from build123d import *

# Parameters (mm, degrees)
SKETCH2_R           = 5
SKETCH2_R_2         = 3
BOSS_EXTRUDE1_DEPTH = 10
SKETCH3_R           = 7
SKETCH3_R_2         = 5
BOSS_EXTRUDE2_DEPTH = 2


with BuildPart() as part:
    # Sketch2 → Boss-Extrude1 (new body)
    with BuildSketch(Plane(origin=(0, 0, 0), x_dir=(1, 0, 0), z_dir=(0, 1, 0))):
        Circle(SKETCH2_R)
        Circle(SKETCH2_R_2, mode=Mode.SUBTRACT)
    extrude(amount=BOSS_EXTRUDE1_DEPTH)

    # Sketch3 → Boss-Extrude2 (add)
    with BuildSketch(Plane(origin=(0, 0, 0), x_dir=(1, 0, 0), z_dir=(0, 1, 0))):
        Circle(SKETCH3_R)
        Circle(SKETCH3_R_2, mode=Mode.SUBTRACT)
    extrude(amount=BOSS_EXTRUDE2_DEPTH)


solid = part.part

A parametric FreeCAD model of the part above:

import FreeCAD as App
import Part
import Sketcher

V = App.Vector
Q = App.Units.Quantity

doc = App.newDocument("Part")
body = doc.addObject("PartDesign::Body", "Body")

# Sketch on XZ plane
sketch1 = doc.addObject("Sketcher::SketchObject", "Sketch")
body.addObject(sketch1)
sketch1.AttachmentSupport = (doc.XZ_Plane, [""])
sketch1.MapMode = "FlatFace"
sketch1.addGeometry(Part.Circle(V(0, 0, 0), V(0, 0, 1), 5), False)
sketch1.addGeometry(Part.Circle(V(0, 0, 0), V(0, 0, 1), 3), False)
sketch1.addConstraint(Sketcher.Constraint("Coincident", 0, 3, -1, 1))
sketch1.addConstraint(Sketcher.Constraint("Coincident", 1, 3, -1, 1))
sketch1.addConstraint(Sketcher.Constraint("Diameter", 0, Q("10 mm")))
sketch1.addConstraint(Sketcher.Constraint("Diameter", 1, Q("6 mm")))
pad1 = doc.addObject("PartDesign::Pad", "Pad")
body.addObject(pad1)
pad1.Profile = sketch1
pad1.Length = 10
pad1.Reversed = True

# Sketch on XZ plane
sketch2 = doc.addObject("Sketcher::SketchObject", "Sketch001")
body.addObject(sketch2)
sketch2.AttachmentSupport = (doc.XZ_Plane, [""])
sketch2.MapMode = "FlatFace"
sketch2.addGeometry(Part.Circle(V(0, 0, 0), V(0, 0, 1), 7), False)
sketch2.addGeometry(Part.Circle(V(0, 0, 0), V(0, 0, 1), 5), False)
sketch2.addConstraint(Sketcher.Constraint("Coincident", 0, 3, -1, 1))
sketch2.addConstraint(Sketcher.Constraint("Coincident", 1, 3, -1, 1))
sketch2.addConstraint(Sketcher.Constraint("Diameter", 0, Q("14 mm")))
sketch2.addConstraint(Sketcher.Constraint("Diameter", 1, Q("10 mm")))
pad2 = doc.addObject("PartDesign::Pad", "Pad001")
body.addObject(pad2)
pad2.Profile = sketch2
pad2.Length = 2
pad2.Reversed = True

doc.recompute()
